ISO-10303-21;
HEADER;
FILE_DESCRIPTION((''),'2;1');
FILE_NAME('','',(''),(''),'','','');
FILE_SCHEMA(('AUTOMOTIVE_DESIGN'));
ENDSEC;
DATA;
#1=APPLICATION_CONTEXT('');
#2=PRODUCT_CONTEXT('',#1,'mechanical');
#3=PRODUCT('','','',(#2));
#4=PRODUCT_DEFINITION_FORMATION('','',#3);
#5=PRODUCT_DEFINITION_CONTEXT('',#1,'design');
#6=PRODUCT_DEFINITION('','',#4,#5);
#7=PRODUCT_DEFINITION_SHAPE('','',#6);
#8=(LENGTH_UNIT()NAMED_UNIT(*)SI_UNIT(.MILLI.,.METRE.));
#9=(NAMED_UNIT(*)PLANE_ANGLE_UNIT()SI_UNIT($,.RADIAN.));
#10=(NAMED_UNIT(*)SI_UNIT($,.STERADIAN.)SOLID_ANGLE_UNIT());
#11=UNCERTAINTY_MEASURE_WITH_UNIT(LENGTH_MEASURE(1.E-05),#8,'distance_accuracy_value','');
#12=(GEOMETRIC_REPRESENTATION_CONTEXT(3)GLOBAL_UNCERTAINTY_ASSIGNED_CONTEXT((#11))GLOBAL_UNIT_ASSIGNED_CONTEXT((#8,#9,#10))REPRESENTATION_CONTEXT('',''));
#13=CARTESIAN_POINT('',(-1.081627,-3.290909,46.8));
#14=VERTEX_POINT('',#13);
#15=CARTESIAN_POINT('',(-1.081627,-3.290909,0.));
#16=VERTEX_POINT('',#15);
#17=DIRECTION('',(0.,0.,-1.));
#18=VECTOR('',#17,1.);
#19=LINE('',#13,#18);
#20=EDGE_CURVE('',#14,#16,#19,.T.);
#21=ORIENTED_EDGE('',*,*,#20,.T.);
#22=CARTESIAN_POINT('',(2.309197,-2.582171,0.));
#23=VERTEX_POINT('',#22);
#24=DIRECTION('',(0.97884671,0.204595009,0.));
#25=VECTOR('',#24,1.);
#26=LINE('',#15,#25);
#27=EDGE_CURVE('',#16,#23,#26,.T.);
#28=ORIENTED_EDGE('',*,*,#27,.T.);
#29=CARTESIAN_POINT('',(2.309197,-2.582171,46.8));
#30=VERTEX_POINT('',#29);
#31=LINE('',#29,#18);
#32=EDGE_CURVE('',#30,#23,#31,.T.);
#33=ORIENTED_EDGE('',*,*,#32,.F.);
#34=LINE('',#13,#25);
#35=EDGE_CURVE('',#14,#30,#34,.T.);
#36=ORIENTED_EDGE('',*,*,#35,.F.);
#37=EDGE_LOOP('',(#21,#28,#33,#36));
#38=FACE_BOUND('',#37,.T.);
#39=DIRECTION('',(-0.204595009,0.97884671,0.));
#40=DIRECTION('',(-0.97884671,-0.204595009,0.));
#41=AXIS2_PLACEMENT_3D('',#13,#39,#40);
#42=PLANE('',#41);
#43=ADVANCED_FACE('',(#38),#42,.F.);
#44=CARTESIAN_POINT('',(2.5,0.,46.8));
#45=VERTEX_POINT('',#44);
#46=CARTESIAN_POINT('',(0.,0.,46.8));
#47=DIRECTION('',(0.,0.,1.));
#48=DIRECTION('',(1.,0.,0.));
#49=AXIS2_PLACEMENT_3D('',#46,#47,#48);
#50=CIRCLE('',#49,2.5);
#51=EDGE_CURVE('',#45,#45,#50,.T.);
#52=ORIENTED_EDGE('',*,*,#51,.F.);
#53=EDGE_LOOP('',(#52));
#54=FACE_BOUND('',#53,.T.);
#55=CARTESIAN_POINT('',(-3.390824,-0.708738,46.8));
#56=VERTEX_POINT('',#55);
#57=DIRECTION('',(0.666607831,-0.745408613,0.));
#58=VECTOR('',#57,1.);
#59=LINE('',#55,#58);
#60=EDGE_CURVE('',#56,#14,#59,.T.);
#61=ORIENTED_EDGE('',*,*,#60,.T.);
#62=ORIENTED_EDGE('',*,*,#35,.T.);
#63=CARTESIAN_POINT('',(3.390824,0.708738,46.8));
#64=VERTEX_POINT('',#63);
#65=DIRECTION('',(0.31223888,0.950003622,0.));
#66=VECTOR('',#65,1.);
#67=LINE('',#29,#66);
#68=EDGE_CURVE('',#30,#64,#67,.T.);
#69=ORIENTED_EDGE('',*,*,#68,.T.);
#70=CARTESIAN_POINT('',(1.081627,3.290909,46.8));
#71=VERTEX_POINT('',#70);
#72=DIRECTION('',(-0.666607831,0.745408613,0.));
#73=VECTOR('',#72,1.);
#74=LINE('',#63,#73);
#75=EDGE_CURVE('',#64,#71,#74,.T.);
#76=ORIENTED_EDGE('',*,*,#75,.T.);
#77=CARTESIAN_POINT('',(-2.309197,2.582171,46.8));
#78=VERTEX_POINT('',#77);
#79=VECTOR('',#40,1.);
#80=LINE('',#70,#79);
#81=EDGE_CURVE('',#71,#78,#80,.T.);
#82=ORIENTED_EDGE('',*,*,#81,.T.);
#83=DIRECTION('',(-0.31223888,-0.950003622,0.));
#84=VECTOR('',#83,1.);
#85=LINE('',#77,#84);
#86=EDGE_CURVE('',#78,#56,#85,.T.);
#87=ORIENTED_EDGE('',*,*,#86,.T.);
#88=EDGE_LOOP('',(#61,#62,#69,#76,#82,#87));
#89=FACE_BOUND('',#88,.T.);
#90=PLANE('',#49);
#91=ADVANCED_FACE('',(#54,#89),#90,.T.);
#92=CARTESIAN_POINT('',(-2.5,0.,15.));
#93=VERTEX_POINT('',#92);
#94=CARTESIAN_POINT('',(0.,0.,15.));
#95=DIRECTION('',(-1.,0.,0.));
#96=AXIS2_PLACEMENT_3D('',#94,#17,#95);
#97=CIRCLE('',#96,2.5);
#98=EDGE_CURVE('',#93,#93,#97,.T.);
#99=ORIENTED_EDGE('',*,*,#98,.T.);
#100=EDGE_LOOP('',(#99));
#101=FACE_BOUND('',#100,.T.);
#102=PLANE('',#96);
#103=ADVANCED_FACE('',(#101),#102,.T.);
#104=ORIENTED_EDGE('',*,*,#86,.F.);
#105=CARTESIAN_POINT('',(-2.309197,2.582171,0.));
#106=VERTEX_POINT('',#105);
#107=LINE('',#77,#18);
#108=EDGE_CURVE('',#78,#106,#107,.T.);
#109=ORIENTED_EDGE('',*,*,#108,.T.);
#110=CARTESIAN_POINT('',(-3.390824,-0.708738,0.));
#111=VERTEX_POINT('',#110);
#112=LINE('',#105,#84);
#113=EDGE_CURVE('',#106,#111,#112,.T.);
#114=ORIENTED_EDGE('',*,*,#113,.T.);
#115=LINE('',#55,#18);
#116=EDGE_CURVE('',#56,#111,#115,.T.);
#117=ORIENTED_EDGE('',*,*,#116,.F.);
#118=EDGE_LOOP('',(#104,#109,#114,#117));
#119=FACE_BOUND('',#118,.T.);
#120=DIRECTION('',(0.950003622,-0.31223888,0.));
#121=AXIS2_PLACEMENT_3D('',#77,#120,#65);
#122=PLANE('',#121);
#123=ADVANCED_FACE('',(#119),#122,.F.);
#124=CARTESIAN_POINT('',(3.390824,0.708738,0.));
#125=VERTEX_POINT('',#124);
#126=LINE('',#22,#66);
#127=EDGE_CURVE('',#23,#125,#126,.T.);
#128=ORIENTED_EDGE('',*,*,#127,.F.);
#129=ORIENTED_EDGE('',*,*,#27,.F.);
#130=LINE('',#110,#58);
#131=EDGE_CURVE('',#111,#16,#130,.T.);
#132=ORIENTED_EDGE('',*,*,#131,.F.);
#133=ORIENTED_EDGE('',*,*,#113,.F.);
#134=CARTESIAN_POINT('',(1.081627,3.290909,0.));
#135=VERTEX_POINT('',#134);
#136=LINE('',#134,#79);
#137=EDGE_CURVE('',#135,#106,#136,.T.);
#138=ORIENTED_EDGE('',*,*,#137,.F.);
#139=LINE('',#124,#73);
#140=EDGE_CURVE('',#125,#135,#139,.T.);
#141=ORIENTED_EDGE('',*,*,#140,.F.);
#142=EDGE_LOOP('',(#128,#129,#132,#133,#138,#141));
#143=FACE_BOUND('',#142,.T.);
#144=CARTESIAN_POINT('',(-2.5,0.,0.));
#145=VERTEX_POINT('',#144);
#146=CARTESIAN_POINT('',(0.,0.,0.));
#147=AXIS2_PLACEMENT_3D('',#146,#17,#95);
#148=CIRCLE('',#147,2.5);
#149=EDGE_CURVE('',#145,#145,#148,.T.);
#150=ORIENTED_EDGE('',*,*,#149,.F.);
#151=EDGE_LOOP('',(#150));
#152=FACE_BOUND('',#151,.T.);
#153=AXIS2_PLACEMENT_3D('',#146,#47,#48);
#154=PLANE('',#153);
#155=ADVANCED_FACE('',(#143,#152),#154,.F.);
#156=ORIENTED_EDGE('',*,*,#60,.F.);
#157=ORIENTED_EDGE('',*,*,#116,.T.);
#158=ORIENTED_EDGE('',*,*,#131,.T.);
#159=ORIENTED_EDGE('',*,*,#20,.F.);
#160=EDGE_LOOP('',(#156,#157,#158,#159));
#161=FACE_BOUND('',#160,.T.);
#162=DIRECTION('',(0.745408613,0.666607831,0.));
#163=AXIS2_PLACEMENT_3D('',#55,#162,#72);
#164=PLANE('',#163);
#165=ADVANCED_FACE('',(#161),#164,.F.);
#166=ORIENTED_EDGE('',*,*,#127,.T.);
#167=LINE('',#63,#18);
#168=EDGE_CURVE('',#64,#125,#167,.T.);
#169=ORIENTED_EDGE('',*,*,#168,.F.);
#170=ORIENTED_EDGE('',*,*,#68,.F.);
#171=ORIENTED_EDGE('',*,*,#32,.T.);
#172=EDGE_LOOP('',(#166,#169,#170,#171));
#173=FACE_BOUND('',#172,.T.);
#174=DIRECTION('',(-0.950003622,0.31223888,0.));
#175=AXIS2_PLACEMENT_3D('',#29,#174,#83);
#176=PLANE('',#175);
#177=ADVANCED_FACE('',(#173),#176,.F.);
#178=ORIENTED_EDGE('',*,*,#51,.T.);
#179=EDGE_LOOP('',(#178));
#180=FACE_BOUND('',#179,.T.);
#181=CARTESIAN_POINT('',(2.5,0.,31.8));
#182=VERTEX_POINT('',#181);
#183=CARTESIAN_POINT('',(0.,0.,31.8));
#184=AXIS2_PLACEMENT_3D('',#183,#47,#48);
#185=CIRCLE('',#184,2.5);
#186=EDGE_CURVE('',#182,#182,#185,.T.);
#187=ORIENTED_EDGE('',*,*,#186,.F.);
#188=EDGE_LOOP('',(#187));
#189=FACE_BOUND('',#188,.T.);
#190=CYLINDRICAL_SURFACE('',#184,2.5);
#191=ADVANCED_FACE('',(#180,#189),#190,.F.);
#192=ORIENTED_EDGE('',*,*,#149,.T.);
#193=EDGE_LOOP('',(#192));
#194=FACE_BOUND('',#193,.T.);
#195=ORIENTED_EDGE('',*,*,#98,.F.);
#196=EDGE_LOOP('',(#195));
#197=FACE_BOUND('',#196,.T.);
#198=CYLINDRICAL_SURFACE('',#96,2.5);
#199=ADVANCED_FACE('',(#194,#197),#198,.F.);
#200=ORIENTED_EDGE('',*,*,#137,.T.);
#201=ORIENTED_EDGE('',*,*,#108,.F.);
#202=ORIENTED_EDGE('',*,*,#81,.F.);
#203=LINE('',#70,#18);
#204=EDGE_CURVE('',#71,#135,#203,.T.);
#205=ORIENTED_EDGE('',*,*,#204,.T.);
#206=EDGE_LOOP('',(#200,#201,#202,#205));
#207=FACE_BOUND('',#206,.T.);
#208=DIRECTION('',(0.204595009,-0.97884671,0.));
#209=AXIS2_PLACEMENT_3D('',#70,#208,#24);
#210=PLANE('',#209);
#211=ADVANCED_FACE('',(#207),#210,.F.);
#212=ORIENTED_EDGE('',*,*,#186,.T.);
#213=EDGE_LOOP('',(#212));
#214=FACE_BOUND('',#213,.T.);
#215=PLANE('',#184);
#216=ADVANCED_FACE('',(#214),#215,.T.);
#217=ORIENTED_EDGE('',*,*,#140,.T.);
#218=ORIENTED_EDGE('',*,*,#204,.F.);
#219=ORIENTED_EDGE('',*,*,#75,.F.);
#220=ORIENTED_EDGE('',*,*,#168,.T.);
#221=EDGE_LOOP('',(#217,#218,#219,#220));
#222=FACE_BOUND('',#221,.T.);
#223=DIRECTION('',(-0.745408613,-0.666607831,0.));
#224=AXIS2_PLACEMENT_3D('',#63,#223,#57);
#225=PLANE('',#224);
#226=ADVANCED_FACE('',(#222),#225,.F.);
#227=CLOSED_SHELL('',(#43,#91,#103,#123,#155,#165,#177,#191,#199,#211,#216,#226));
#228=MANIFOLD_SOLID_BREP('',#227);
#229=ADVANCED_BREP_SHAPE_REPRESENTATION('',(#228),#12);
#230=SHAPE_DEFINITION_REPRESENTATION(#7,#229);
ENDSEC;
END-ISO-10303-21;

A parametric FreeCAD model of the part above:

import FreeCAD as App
import Part
import Sketcher
from FreeCAD import Vector
Q = App.Units.Quantity

doc = App.newDocument("Part")
body = doc.addObject("PartDesign::Body", "Body")

sketch1 = body.newObject("Sketcher::SketchObject", "Sketch")
sketch1.AttachmentSupport = (doc.getObject("XY_Plane"), [""])
sketch1.MapMode = "FlatFace"
sketch1.addGeometry([
    Part.LineSegment(Vector(3.4, 0.7, 0), Vector(1.1, 3.3, 0)),
    Part.LineSegment(Vector(1.1, 3.3, 0), Vector(-2.3, 2.6, 0)),
    Part.LineSegment(Vector(-2.3, 2.6, 0), Vector(-3.4, -0.7, 0)),
    Part.LineSegment(Vector(-3.4, -0.7, 0), Vector(-1.1, -3.3, 0)),
    Part.LineSegment(Vector(-1.1, -3.3, 0), Vector(2.3, -2.6, 0)),
    Part.LineSegment(Vector(2.3, -2.6, 0), Vector(3.4, 0.7, 0)),
], False)
sketch1.addConstraint([
    Sketcher.Constraint("Coincident", 0, 2, 1, 1),
    Sketcher.Constraint("Coincident", 1, 2, 2, 1),
    Sketcher.Constraint("Coincident", 2, 2, 3, 1),
    Sketcher.Constraint("Coincident", 3, 2, 4, 1),
    Sketcher.Constraint("Coincident", 4, 2, 5, 1),
    Sketcher.Constraint("Coincident", 5, 2, 0, 1),
    Sketcher.Constraint("Symmetric", 0, 2, 3, 2, -1, 1),
    Sketcher.Constraint("Symmetric", 1, 2, 4, 2, -1, 1),
    Sketcher.Constraint("Symmetric", 2, 2, 5, 2, -1, 1),
    Sketcher.Constraint("Equal", 0, 1),
    Sketcher.Constraint("Equal", 1, 2),
    Sketcher.Constraint("Distance", 0, Q("3.464102 mm")),
    Sketcher.Constraint("DistanceY", -1, 1, 0, 2, Q("3.290909 mm")),
    Sketcher.Constraint("DistanceY", -1, 1, 1, 2, Q("2.582171 mm")),
    Sketcher.Constraint("DistanceY", 2, 2, 1, 2, Q("3.290909 mm")),
])
pad1 = body.newObject("PartDesign::Pad", "Pad")
pad1.Profile = sketch1
pad1.Length = 46.8

sketch2 = body.newObject("Sketcher::SketchObject", "Sketch001")
sketch2.AttachmentSupport = (doc.getObject("XY_Plane"), [""])
sketch2.MapMode = "FlatFace"
sketch2.AttachmentOffset = App.Placement(Vector(0, 0, 46.8), App.Rotation())
sketch2.addGeometry(Part.Circle(Vector(0, 0, 0), Vector(0, 0, 1), 2.5), False)
sketch2.addConstraint([
    Sketcher.Constraint("Coincident", 0, 3, -1, 1),
    Sketcher.Constraint("Diameter", 0, Q("5 mm")),
])
pocket1 = body.newObject("PartDesign::Pocket", "Pocket")
pocket1.Profile = sketch2
pocket1.Length = 15

sketch3 = body.newObject("Sketcher::SketchObject", "Sketch002")
sketch3.AttachmentSupport = (doc.getObject("XY_Plane"), [""])
sketch3.MapMode = "FlatFace"
sketch3.AttachmentOffset = App.Placement(Vector(0, 0, 15), App.Rotation())
sketch3.addGeometry(Part.Circle(Vector(0, 0, 0), Vector(0, 0, 1), 2.5), False)
sketch3.addConstraint([
    Sketcher.Constraint("Coincident", 0, 3, -1, 1),
    Sketcher.Constraint("Diameter", 0, Q("5 mm")),
])
pocket2 = body.newObject("PartDesign::Pocket", "Pocket001")
pocket2.Profile = sketch3
pocket2.Length = 15

doc.recompute()
